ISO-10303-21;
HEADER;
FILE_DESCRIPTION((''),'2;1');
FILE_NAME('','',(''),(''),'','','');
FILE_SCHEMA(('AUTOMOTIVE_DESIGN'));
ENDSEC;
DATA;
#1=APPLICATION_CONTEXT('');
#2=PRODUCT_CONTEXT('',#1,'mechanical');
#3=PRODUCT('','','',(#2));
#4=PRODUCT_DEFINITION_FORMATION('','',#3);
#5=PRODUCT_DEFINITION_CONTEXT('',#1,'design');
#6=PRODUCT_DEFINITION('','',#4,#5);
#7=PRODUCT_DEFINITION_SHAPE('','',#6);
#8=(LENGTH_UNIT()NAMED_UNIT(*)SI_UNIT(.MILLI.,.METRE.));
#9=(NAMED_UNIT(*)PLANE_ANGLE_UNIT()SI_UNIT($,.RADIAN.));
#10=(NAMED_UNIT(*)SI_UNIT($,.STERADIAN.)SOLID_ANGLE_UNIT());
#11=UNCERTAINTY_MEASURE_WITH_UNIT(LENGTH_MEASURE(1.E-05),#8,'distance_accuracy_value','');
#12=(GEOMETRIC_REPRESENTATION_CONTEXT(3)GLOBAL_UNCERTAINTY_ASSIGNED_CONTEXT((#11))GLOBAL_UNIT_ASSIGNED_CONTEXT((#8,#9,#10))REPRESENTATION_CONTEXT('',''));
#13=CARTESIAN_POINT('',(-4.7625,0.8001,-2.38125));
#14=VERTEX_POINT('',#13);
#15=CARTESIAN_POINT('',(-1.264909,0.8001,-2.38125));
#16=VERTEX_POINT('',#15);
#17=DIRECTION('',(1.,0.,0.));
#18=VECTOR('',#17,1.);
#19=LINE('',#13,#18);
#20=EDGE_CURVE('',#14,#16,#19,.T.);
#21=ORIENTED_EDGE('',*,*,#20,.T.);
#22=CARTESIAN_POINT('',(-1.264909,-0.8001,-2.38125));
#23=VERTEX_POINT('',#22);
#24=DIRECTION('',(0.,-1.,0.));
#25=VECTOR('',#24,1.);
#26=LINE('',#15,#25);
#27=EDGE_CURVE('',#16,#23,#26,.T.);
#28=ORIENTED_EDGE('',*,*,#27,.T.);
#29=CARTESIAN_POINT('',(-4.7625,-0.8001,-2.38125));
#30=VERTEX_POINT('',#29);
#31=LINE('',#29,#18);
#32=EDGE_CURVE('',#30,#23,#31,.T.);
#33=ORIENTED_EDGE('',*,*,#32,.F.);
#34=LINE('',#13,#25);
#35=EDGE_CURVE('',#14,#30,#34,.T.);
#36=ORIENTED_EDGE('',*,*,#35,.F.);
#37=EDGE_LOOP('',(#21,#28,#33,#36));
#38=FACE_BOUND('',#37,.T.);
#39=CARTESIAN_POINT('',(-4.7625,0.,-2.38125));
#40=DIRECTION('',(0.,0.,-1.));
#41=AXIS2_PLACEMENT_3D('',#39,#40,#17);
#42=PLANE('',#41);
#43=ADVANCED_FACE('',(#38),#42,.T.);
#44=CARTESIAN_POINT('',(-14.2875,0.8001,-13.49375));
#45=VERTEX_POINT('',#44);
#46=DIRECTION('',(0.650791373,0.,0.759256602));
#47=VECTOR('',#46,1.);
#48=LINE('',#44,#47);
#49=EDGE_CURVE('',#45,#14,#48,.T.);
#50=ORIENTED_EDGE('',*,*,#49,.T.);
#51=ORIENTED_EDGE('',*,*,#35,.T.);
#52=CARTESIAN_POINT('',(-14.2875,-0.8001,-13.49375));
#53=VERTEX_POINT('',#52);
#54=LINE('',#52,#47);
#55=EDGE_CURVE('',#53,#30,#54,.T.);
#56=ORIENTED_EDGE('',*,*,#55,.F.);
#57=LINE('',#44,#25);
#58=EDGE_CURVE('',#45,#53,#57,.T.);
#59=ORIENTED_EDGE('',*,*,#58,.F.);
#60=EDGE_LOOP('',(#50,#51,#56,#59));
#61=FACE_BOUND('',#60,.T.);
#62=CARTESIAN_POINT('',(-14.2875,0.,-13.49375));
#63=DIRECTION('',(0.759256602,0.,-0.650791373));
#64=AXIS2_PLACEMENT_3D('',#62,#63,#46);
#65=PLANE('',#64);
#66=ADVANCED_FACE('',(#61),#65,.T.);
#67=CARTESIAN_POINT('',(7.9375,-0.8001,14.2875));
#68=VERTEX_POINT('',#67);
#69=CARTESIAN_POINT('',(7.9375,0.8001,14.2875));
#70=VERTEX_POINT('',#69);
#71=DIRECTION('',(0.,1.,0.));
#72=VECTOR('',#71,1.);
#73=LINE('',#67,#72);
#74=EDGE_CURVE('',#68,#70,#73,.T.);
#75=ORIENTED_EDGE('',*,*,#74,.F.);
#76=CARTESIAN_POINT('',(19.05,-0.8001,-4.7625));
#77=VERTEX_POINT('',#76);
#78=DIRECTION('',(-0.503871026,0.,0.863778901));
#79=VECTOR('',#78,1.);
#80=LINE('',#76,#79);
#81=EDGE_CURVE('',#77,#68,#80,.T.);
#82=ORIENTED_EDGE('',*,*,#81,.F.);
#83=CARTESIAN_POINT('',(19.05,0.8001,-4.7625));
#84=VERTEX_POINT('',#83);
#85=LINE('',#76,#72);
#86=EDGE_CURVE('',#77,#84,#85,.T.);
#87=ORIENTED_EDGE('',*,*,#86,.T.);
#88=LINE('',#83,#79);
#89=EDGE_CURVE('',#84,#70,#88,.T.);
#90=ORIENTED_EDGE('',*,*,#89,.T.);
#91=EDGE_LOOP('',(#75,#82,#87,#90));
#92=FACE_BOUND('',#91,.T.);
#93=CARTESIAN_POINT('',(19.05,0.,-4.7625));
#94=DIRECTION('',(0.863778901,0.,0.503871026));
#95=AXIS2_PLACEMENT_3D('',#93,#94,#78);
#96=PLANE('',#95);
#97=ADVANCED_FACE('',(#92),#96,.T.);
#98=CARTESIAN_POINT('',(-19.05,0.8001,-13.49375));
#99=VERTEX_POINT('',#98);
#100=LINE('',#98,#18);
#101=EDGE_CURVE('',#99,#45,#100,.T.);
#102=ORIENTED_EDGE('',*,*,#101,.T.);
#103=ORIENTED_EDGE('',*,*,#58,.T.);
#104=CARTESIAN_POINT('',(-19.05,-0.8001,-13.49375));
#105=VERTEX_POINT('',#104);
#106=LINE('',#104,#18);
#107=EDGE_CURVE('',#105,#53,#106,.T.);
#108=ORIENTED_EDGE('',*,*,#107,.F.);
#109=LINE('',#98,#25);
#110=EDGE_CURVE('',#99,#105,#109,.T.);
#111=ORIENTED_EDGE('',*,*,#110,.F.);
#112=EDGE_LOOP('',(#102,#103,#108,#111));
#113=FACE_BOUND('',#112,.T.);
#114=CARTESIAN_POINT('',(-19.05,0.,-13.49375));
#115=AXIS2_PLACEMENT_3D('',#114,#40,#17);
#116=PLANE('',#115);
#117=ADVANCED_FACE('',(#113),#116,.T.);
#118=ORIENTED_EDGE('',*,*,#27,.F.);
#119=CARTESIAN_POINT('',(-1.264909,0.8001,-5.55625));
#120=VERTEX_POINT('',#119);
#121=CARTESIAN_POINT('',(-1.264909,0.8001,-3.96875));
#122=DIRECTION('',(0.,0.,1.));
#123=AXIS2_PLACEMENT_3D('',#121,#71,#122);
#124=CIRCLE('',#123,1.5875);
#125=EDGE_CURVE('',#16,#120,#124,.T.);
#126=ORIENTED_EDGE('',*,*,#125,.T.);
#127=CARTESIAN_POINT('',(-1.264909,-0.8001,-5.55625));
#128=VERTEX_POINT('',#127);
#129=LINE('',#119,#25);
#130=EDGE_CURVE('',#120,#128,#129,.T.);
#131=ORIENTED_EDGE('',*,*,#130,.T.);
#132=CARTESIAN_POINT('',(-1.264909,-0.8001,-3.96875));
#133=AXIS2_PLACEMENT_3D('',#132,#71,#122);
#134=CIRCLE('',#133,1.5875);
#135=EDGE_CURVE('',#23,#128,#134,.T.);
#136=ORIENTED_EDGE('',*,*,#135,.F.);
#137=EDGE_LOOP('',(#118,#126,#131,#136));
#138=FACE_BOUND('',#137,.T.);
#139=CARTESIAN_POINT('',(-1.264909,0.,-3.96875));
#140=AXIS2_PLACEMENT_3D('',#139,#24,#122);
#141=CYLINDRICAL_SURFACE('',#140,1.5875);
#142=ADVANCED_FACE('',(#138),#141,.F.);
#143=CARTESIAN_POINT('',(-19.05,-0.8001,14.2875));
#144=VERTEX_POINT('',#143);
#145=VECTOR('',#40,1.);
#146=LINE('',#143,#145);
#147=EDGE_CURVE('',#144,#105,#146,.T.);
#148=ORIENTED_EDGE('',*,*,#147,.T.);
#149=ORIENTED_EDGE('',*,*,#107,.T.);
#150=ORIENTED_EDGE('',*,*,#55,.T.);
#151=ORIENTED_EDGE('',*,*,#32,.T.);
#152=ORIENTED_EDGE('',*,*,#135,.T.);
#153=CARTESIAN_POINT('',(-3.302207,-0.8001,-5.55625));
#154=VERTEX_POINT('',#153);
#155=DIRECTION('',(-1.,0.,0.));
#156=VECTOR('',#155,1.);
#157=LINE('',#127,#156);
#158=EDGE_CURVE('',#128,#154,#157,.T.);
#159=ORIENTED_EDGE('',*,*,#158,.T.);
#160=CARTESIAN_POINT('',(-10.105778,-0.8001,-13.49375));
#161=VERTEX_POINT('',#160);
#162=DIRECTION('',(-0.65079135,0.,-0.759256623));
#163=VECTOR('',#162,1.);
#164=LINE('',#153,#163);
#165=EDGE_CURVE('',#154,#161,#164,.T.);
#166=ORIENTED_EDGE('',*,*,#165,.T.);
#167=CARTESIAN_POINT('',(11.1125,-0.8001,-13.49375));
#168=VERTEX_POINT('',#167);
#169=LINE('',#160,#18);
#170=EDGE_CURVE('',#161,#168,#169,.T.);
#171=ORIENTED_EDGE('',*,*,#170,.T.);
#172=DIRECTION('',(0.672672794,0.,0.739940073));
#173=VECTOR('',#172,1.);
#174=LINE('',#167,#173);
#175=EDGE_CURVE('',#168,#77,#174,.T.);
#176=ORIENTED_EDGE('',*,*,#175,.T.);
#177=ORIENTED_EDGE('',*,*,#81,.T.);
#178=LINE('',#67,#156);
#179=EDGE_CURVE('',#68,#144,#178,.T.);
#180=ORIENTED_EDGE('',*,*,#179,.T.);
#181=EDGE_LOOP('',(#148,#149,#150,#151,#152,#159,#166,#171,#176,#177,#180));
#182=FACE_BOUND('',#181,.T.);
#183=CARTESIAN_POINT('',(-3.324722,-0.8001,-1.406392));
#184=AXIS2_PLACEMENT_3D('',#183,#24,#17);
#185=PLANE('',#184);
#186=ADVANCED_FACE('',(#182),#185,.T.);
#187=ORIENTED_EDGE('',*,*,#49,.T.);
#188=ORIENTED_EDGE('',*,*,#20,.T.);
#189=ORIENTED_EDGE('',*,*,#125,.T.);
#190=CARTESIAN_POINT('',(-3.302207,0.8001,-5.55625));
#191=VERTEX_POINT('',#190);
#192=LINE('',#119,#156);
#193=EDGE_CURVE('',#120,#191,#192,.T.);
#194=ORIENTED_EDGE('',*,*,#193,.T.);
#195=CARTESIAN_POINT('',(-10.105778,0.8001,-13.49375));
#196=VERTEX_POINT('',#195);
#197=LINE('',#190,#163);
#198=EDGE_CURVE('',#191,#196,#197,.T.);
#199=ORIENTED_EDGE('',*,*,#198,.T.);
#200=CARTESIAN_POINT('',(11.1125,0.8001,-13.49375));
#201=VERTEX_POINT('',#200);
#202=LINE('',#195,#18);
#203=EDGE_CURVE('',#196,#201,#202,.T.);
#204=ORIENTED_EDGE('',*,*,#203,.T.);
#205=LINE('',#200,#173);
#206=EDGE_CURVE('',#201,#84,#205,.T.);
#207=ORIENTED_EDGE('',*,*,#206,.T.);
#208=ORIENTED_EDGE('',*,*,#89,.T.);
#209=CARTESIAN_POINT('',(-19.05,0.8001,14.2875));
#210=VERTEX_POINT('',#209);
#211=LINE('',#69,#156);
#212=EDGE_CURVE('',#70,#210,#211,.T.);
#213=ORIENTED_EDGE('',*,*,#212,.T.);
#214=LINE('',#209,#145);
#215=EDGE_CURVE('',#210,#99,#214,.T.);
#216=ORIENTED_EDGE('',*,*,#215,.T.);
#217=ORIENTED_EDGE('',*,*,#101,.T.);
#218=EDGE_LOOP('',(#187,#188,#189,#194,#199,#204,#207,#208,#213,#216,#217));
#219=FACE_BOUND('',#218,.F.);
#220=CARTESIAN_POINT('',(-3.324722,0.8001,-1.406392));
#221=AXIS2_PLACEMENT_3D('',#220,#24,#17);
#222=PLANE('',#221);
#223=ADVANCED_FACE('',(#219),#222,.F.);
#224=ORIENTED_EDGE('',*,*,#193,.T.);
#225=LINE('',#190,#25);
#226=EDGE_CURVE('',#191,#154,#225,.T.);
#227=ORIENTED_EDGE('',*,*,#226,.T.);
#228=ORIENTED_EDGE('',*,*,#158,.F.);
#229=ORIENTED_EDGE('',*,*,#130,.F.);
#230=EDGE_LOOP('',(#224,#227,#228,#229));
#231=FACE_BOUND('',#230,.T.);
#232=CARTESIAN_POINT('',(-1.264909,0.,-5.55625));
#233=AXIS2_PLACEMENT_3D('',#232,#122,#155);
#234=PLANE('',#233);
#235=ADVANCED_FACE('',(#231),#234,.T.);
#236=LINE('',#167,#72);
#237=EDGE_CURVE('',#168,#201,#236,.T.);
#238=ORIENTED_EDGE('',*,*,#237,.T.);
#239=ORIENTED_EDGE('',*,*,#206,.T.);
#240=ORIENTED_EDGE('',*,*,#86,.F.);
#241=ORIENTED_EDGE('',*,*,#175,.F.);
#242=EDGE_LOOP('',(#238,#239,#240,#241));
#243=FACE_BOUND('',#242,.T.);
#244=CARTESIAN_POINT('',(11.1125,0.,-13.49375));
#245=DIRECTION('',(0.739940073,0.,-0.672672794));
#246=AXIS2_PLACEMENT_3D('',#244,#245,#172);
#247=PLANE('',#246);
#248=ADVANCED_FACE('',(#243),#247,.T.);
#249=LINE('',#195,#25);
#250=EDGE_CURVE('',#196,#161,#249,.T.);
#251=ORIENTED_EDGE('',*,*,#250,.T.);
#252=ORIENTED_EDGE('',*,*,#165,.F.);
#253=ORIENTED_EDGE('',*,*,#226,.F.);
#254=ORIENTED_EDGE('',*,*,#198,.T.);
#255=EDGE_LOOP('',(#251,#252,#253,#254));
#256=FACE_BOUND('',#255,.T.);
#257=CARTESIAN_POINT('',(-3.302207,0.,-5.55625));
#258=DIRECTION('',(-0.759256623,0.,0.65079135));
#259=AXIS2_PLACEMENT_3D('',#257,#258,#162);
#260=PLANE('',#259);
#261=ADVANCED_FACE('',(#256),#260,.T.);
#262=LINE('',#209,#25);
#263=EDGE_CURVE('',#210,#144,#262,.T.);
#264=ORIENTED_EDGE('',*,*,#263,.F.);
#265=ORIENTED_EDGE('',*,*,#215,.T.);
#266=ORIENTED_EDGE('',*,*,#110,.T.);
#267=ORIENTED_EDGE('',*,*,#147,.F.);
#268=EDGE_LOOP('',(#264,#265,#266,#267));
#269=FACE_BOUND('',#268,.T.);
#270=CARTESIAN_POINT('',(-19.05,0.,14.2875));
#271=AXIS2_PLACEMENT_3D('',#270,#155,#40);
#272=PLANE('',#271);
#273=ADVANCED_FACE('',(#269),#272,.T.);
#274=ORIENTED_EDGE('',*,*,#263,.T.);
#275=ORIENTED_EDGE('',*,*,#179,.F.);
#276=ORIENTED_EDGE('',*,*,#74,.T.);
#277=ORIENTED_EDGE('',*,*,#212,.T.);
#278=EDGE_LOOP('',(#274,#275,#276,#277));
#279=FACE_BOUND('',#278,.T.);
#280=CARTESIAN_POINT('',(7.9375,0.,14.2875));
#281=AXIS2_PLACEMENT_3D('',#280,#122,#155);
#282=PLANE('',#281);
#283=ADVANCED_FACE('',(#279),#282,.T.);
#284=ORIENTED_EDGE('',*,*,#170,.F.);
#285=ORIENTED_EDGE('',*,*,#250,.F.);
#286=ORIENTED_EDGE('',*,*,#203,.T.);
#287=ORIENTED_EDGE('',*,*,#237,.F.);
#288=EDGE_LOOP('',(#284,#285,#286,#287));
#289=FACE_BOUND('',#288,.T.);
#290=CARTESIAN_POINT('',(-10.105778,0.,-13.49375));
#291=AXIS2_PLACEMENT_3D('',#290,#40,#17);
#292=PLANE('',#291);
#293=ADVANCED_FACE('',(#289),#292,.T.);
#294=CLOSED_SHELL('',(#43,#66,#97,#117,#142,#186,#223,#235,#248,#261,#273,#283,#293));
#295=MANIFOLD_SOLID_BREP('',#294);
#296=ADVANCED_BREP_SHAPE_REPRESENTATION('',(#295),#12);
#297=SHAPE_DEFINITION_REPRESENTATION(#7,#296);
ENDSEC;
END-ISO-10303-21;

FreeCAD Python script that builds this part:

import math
import FreeCAD as App
import Part
import Sketcher

V = App.Vector
Q = App.Units.Quantity

doc = App.newDocument("Part")
body = doc.addObject("PartDesign::Body", "Body")

sketch1 = doc.addObject("Sketcher::SketchObject", "Sketch")
body.addObject(sketch1)
sketch1.AttachmentSupport = (doc.XZ_Plane, [""])
sketch1.MapMode = "FlatFace"
sketch1.addGeometry([
    Part.LineSegment(V(7.9, 14.3, 0), V(-19.1, 14.3, 0)),
    Part.LineSegment(V(-19.1, 14.3, 0), V(-19.1, -13.5, 0)),
    Part.LineSegment(V(-19.1, -13.5, 0), V(-14.3, -13.5, 0)),
    Part.LineSegment(V(-14.3, -13.5, 0), V(-4.8, -2.4, 0)),
    Part.LineSegment(V(-4.8, -2.4, 0), V(-1.3, -2.4, 0)),
    Part.ArcOfCircle(Part.Circle(V(-1.3, -4, 0), V(0, 0, 1), 1.6), math.radians(-90), math.radians(90)),
    Part.LineSegment(V(-1.3, -5.6, 0), V(-3.3, -5.6, 0)),
    Part.LineSegment(V(-3.3, -5.6, 0), V(-10.1, -13.5, 0)),
    Part.LineSegment(V(-10.1, -13.5, 0), V(11.1, -13.5, 0)),
    Part.LineSegment(V(11.1, -13.5, 0), V(19.1, -4.8, 0)),
    Part.LineSegment(V(19.1, -4.8, 0), V(7.9, 14.3, 0)),
], False)
sketch1.addConstraint([
    Sketcher.Constraint("Coincident", 0, 2, 1, 1),
    Sketcher.Constraint("Coincident", 1, 2, 2, 1),
    Sketcher.Constraint("Coincident", 2, 2, 3, 1),
    Sketcher.Constraint("Coincident", 3, 2, 4, 1),
    Sketcher.Constraint("Tangent", 4, 2, 5, 2),
    Sketcher.Constraint("Tangent", 5, 1, 6, 1),
    Sketcher.Constraint("Coincident", 6, 2, 7, 1),
    Sketcher.Constraint("Coincident", 7, 2, 8, 1),
    Sketcher.Constraint("Coincident", 8, 2, 9, 1),
    Sketcher.Constraint("Coincident", 9, 2, 10, 1),
    Sketcher.Constraint("Coincident", 10, 2, 0, 1),
    Sketcher.Constraint("Horizontal", 0),
    Sketcher.Constraint("Vertical", 1),
    Sketcher.Constraint("Horizontal", 2),
    Sketcher.Constraint("Horizontal", 4),
    Sketcher.Constraint("Horizontal", 6),
    Sketcher.Constraint("Horizontal", 8),
    Sketcher.Constraint("Parallel", 3, 7),
    Sketcher.Constraint("Horizontal", 2, 2, 7, 2),
    Sketcher.Constraint("Radius", 5, Q("0.0625 in")),
    Sketcher.Constraint("DistanceX", 3, 2, 10, 2, Q("0.5 in")),
    Sketcher.Constraint("DistanceX", 0, 2, 0, 1, Q("1.0625 in")),
    Sketcher.Constraint("DistanceX", 2, 1, 2, 2, Q("0.1875 in")),
    Sketcher.Constraint("DistanceY", 1, 2, 1, 1, Q("1.09375 in")),
    Sketcher.Constraint("DistanceX", 0, 2, -1, 1, Q("0.75 in")),
    Sketcher.Constraint("DistanceX", -1, 1, 9, 2, Q("0.75 in")),
    Sketcher.Constraint("DistanceY", 9, 2, 10, 2, Q("0.75 in")),
    Sketcher.Constraint("DistanceY", 5, 3, -1, 1, Q("0.15625 in")),
    Sketcher.Constraint("DistanceY", -1, 1, 0, 2, Q("0.5625 in")),
    Sketcher.Constraint("DistanceX", -1, 1, 8, 2, Q("0.4375 in")),
    Sketcher.Constraint("DistanceX", 4, 1, 4, 2, 3.497591),
    Sketcher.Constraint("DistanceX", 8, 1, 8, 2, 21.218278),
])
pad1 = doc.addObject("PartDesign::Pad", "Pad")
body.addObject(pad1)
pad1.Profile = sketch1
pad1.Length = Q("0.063 in")
pad1.Midplane = True

doc.recompute()
